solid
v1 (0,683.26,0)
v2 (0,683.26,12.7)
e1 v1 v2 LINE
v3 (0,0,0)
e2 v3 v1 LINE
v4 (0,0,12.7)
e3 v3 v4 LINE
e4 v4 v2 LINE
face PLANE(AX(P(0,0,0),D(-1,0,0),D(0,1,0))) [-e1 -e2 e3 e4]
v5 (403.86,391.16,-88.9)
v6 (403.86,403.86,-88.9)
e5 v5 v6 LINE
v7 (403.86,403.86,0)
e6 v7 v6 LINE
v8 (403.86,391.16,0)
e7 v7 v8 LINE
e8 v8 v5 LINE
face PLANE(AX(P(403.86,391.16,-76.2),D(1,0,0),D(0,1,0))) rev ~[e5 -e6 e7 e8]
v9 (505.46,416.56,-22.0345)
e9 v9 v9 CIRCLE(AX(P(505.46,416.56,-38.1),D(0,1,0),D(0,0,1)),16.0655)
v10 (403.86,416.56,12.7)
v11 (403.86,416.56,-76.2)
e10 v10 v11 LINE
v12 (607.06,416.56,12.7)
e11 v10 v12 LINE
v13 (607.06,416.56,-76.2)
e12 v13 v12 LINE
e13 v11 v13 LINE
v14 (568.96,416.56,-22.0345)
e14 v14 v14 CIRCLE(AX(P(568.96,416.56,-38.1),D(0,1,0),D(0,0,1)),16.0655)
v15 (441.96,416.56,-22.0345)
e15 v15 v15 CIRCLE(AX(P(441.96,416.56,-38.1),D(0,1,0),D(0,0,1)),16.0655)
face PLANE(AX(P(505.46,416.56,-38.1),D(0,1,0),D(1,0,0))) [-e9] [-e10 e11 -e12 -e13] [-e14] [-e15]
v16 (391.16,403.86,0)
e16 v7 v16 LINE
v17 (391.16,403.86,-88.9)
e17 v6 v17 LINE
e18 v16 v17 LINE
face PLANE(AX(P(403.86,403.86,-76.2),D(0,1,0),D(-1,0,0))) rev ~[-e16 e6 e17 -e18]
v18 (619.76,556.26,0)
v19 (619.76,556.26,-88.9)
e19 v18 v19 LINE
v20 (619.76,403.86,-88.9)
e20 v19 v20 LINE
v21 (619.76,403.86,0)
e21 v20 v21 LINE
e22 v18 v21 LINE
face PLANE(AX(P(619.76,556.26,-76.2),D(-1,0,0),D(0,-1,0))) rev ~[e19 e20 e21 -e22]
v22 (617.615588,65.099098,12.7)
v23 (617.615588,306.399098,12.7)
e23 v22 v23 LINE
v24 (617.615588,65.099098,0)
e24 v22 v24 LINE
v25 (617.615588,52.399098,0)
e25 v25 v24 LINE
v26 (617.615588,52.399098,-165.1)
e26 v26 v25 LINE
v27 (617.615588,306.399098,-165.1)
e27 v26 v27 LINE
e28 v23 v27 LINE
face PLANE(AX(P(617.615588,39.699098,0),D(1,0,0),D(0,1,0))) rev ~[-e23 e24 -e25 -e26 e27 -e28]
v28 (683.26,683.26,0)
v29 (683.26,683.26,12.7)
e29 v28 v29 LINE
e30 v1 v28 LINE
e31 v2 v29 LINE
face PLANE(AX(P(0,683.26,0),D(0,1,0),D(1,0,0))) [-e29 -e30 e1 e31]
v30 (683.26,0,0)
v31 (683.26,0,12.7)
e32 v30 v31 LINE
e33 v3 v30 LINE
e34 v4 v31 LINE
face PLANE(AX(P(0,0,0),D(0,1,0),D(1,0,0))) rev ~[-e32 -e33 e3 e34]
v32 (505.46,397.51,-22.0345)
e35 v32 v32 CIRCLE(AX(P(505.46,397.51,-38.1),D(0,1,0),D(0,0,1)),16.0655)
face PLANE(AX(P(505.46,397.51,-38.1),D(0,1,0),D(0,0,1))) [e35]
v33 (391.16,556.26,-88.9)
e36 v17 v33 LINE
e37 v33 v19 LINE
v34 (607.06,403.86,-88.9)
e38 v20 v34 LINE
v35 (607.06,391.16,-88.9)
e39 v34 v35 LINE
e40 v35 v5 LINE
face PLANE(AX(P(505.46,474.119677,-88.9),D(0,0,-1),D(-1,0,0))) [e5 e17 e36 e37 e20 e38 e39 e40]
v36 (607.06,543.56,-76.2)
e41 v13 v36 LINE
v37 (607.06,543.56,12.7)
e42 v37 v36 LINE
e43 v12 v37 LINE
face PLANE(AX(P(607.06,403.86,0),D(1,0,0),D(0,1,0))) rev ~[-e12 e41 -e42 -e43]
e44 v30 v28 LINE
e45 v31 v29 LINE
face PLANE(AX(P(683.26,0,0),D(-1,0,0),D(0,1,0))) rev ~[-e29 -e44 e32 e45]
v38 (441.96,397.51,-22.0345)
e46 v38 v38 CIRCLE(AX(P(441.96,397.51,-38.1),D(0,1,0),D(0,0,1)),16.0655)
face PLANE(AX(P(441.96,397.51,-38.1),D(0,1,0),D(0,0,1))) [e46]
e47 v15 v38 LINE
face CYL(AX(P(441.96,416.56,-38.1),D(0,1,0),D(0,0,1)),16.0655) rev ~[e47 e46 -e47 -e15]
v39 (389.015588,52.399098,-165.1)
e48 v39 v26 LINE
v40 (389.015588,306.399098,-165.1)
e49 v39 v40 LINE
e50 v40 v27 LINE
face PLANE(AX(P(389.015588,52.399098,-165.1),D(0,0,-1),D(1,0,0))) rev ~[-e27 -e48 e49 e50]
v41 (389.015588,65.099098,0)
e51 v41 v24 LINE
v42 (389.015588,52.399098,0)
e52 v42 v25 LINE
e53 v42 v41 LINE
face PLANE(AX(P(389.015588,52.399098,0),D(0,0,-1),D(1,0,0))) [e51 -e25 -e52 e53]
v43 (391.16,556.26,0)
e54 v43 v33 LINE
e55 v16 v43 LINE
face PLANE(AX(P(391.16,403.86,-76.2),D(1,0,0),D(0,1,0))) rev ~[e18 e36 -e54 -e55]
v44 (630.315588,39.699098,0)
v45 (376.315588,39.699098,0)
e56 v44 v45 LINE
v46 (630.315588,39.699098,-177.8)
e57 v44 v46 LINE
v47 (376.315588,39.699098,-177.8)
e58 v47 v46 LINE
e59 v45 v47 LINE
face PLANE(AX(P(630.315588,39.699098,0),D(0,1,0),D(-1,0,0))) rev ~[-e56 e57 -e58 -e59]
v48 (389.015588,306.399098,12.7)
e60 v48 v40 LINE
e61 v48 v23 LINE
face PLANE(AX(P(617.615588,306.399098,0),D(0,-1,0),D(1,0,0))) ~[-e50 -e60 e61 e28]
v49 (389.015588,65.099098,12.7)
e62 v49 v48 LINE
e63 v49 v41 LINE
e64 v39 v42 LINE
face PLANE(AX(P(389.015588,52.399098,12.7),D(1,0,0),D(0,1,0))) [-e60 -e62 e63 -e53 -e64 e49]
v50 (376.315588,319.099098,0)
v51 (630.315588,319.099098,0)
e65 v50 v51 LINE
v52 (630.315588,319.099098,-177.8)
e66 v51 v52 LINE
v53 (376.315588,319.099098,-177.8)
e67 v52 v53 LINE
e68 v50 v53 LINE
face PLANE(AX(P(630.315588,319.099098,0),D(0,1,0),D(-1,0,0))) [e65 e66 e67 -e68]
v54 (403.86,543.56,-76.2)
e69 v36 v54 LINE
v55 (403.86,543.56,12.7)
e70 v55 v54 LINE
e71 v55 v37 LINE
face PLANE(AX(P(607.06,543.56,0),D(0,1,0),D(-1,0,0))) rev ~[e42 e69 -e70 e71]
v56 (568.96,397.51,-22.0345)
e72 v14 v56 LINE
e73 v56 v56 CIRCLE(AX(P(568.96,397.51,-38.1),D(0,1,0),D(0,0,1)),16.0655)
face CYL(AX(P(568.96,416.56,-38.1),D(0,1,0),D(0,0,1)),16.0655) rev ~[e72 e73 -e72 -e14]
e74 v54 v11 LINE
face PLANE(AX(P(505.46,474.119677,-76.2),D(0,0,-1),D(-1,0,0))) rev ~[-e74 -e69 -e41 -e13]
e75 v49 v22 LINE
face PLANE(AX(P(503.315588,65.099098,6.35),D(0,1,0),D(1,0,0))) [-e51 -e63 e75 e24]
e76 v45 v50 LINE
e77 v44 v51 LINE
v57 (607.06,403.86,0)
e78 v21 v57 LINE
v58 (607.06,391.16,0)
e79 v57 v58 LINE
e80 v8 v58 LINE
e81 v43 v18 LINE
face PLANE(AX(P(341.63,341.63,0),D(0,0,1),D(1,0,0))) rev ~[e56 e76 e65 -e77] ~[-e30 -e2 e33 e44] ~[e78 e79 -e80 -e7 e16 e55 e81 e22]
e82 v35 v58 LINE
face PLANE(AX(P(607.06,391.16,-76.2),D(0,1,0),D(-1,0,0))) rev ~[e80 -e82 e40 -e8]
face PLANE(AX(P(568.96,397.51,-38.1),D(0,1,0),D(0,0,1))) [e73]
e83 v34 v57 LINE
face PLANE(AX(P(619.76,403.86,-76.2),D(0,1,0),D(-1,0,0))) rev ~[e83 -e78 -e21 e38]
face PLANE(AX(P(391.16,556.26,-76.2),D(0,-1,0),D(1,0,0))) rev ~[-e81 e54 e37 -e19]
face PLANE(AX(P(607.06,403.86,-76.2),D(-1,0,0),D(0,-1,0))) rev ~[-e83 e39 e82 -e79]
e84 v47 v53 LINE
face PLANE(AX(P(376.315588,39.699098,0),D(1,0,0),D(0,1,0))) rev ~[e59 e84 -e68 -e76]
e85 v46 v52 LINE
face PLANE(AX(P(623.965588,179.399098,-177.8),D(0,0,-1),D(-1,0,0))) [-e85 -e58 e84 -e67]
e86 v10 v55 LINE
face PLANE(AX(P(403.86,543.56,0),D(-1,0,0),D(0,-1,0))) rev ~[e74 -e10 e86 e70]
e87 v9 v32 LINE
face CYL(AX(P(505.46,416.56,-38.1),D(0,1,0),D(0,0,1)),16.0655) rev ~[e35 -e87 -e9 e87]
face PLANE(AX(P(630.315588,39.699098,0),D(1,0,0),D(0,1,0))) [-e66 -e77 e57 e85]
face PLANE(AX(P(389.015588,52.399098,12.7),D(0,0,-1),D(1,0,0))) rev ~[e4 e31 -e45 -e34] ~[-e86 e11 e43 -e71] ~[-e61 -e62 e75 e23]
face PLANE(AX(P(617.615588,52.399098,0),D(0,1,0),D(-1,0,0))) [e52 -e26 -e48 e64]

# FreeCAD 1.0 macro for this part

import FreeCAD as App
import Part
import Sketcher
Q = App.Units.Quantity

doc = App.newDocument("Part")
body = doc.addObject("PartDesign::Body", "Body")

sketch1 = doc.addObject("Sketcher::SketchObject", "Sketch")
body.addObject(sketch1)
sketch1.AttachmentSupport = (doc.XY_Plane, [""])
sketch1.MapMode = "FlatFace"
sketch1.addGeometry([
    Part.LineSegment(App.Vector(0, 683, 0), App.Vector(0, 0, 0)),
    Part.LineSegment(App.Vector(0, 0, 0), App.Vector(683, 0, 0)),
    Part.LineSegment(App.Vector(683, 0, 0), App.Vector(683, 683, 0)),
    Part.LineSegment(App.Vector(683, 683, 0), App.Vector(0, 683, 0)),
    Part.LineSegment(App.Vector(607, 417, 0), App.Vector(404, 417, 0)),
    Part.LineSegment(App.Vector(404, 417, 0), App.Vector(404, 544, 0)),
    Part.LineSegment(App.Vector(404, 544, 0), App.Vector(607, 544, 0)),
    Part.LineSegment(App.Vector(607, 544, 0), App.Vector(607, 417, 0)),
], False)
sketch1.addConstraint([
    Sketcher.Constraint("Coincident", 0, 2, 1, 1),
    Sketcher.Constraint("Coincident", 1, 2, 2, 1),
    Sketcher.Constraint("Coincident", 2, 2, 3, 1),
    Sketcher.Constraint("Coincident", 3, 2, 0, 1),
    Sketcher.Constraint("Coincident", 4, 2, 5, 1),
    Sketcher.Constraint("Coincident", 5, 2, 6, 1),
    Sketcher.Constraint("Coincident", 6, 2, 7, 1),
    Sketcher.Constraint("Coincident", 7, 2, 4, 1),
    Sketcher.Constraint("Vertical", 0),
    Sketcher.Constraint("Horizontal", 1),
    Sketcher.Constraint("Vertical", 2),
    Sketcher.Constraint("Horizontal", 3),
    Sketcher.Constraint("Horizontal", 4),
    Sketcher.Constraint("Vertical", 5),
    Sketcher.Constraint("Horizontal", 6),
    Sketcher.Constraint("Vertical", 7),
    Sketcher.Constraint("Coincident", 0, 2, -1, 1),
    Sketcher.Constraint("Equal", 3, 0),
    Sketcher.Constraint("DistanceX", 4, 2, 4, 1, Q("8 in")),
    Sketcher.Constraint("DistanceY", 5, 1, 5, 2, Q("5 in")),
    Sketcher.Constraint("DistanceX", 1, 1, 1, 2, Q("26.9 in")),
    Sketcher.Constraint("DistanceX", 4, 2, 2, 2, Q("11 in")),
    Sketcher.Constraint("DistanceY", -1, 1, 4, 2, Q("16.4 in")),
])
pad1 = doc.addObject("PartDesign::Pad", "Pad")
body.addObject(pad1)
pad1.Profile = sketch1
pad1.Length = Q("0.5 in")

sketch2 = doc.addObject("Sketcher::SketchObject", "Sketch001")
body.addObject(sketch2)
sketch2.AttachmentSupport = (doc.XZ_Plane, [""])
sketch2.MapMode = "FlatFace"
sketch2.AttachmentOffset = App.Placement(App.Vector(0, 0, -16.4 * 25.4), App.Rotation())
sketch2.addGeometry([
    Part.LineSegment(App.Vector(404, -76, 0), App.Vector(404, 0, 0)),
    Part.LineSegment(App.Vector(404, 0, 0), App.Vector(607, 0, 0)),
    Part.LineSegment(App.Vector(607, 0, 0), App.Vector(607, -76, 0)),
    Part.LineSegment(App.Vector(607, -76, 0), App.Vector(404, -76, 0)),
], False)
sketch2.addConstraint([
    Sketcher.Constraint("Coincident", 0, 2, 1, 1),
    Sketcher.Constraint("Coincident", 1, 2, 2, 1),
    Sketcher.Constraint("Coincident", 2, 2, 3, 1),
    Sketcher.Constraint("Coincident", 3, 2, 0, 1),
    Sketcher.Constraint("Vertical", 0),
    Sketcher.Constraint("Horizontal", 1),
    Sketcher.Constraint("Vertical", 2),
    Sketcher.Constraint("Horizontal", 3),
    Sketcher.Constraint("PointOnObject", 0, 2, -1),
    Sketcher.Constraint("DistanceX", 1, 1, 1, 2, Q("8 in")),
    Sketcher.Constraint("DistanceY", 0, 1, 0, 2, Q("3 in")),
    Sketcher.Constraint("DistanceX", -1, 1, 0, 2, Q("15.9 in")),
])
pad2 = doc.addObject("PartDesign::Pad", "Pad001")
body.addObject(pad2)
pad2.Profile = sketch2
pad2.Length = Q("1 in")

sketch3 = doc.addObject("Sketcher::SketchObject", "Sketch002")
body.addObject(sketch3)
sketch3.AttachmentSupport = (doc.XZ_Plane, [""])
sketch3.MapMode = "FlatFace"
sketch3.AttachmentOffset = App.Placement(App.Vector(0, 0, -16.4 * 25.4), App.Rotation())
sketch3.addGeometry([
    Part.Circle(App.Vector(569, -38, 0), App.Vector(0, 0, 1), 16),
    Part.Circle(App.Vector(505, -38, 0), App.Vector(0, 0, 1), 16),
    Part.Circle(App.Vector(442, -38, 0), App.Vector(0, 0, 1), 16),
], False)
sketch3.addConstraint([
    Sketcher.Constraint("Equal", 0, 1),
    Sketcher.Constraint("Equal", 1, 2),
    Sketcher.Constraint("Horizontal", 0, 3, 1, 3),
    Sketcher.Constraint("Horizontal", 1, 3, 2, 3),
    Sketcher.Constraint("Diameter", 0, Q("1.265 in")),
    Sketcher.Constraint("DistanceX", 2, 3, 0, 3, Q("5 in")),
    Sketcher.Constraint("DistanceX", -1, 1, 0, 3, Q("22.4 in")),
    Sketcher.Constraint("DistanceY", 0, 3, -1, 1, Q("1.5 in")),
    Sketcher.Constraint("DistanceX", -1, 1, 1, 3, Q("19.9 in")),
])
pocket1 = doc.addObject("PartDesign::Pocket", "Pocket")
body.addObject(pocket1)
pocket1.Profile = sketch3
pocket1.Length = Q("0.75 in")
pocket1.Reversed = True

sketch4 = doc.addObject("Sketcher::SketchObject", "Sketch003")
body.addObject(sketch4)
sketch4.AttachmentSupport = (doc.XY_Plane, [""])
sketch4.MapMode = "FlatFace"
sketch4.addGeometry([
    Part.LineSegment(App.Vector(620, 404, 0), App.Vector(607, 404, 0)),
    Part.LineSegment(App.Vector(607, 404, 0), App.Vector(607, 544, 0)),
    Part.LineSegment(App.Vector(607, 544, 0), App.Vector(404, 544, 0)),
    Part.LineSegment(App.Vector(404, 544, 0), App.Vector(404, 404, 0)),
    Part.LineSegment(App.Vector(404, 404, 0), App.Vector(391, 404, 0)),
    Part.LineSegment(App.Vector(391, 404, 0), App.Vector(391, 556, 0)),
    Part.LineSegment(App.Vector(391, 556, 0), App.Vector(620, 556, 0)),
    Part.LineSegment(App.Vector(620, 556, 0), App.Vector(620, 404, 0)),
], False)
sketch4.addConstraint([
    Sketcher.Constraint("Coincident", 0, 2, 1, 1),
    Sketcher.Constraint("Coincident", 1, 2, 2, 1),
    Sketcher.Constraint("Coincident", 2, 2, 3, 1),
    Sketcher.Constraint("Coincident", 3, 2, 4, 1),
    Sketcher.Constraint("Coincident", 4, 2, 5, 1),
    Sketcher.Constraint("Coincident", 5, 2, 6, 1),
    Sketcher.Constraint("Coincident", 6, 2, 7, 1),
    Sketcher.Constraint("Coincident", 7, 2, 0, 1),
    Sketcher.Constraint("Horizontal", 0),
    Sketcher.Constraint("Vertical", 1),
    Sketcher.Constraint("Horizontal", 2),
    Sketcher.Constraint("Vertical", 3),
    Sketcher.Constraint("Horizontal", 4),
    Sketcher.Constraint("Vertical", 5),
    Sketcher.Constraint("Horizontal", 6),
    Sketcher.Constraint("Vertical", 7),
    Sketcher.Constraint("Horizontal", 0, 2, 3, 2),
    Sketcher.Constraint("Equal", 0, 4),
    Sketcher.Constraint("DistanceX", 2, 2, 2, 1, Q("8 in")),
    Sketcher.Constraint("DistanceX", 6, 1, 6, 2, Q("9 in")),
    Sketcher.Constraint("DistanceY", 5, 1, 5, 2, Q("6 in")),
    Sketcher.Constraint("DistanceY", 1, 1, 1, 2, Q("5.5 in")),
    Sketcher.Constraint("DistanceX", -1, 1, 0, 2, Q("23.9 in")),
    Sketcher.Constraint("DistanceY", -1, 1, 0, 2, Q("15.9 in")),
])
pad3 = doc.addObject("PartDesign::Pad", "Pad002")
body.addObject(pad3)
pad3.Profile = sketch4
pad3.Length = Q("3 in")
pad3.Reversed = True

sketch5 = doc.addObject("Sketcher::SketchObject", "Sketch004")
body.addObject(sketch5)
sketch5.AttachmentSupport = (doc.XY_Plane, [""])
sketch5.MapMode = "FlatFace"
sketch5.AttachmentOffset = App.Placement(App.Vector(0, 0, -3 * 25.4), App.Rotation())
sketch5.addGeometry([
    Part.LineSegment(App.Vector(607, 391, 0), App.Vector(404, 391, 0)),
    Part.LineSegment(App.Vector(404, 391, 0), App.Vector(404, 404, 0)),
    Part.LineSegment(App.Vector(404, 404, 0), App.Vector(391, 404, 0)),
    Part.LineSegment(App.Vector(391, 404, 0), App.Vector(391, 556, 0)),
    Part.LineSegment(App.Vector(391, 556, 0), App.Vector(620, 556, 0)),
    Part.LineSegment(App.Vector(620, 556, 0), App.Vector(620, 404, 0)),
    Part.LineSegment(App.Vector(620, 404, 0), App.Vector(607, 404, 0)),
    Part.LineSegment(App.Vector(607, 404, 0), App.Vector(607, 391, 0)),
], False)
sketch5.addConstraint([
    Sketcher.Constraint("Coincident", 0, 2, 1, 1),
    Sketcher.Constraint("Coincident", 1, 2, 2, 1),
    Sketcher.Constraint("Coincident", 2, 2, 3, 1),
    Sketcher.Constraint("Coincident", 3, 2, 4, 1),
    Sketcher.Constraint("Coincident", 4, 2, 5, 1),
    Sketcher.Constraint("Coincident", 5, 2, 6, 1),
    Sketcher.Constraint("Coincident", 6, 2, 7, 1),
    Sketcher.Constraint("Coincident", 7, 2, 0, 1),
    Sketcher.Constraint("Horizontal", 0),
    Sketcher.Constraint("Vertical", 1),
    Sketcher.Constraint("Horizontal", 2),
    Sketcher.Constraint("Vertical", 3),
    Sketcher.Constraint("Horizontal", 4),
    Sketcher.Constraint("Vertical", 5),
    Sketcher.Constraint("Horizontal", 6),
    Sketcher.Constraint("Vertical", 7),
    Sketcher.Constraint("Horizontal", 2, 2, 5, 2),
    Sketcher.Constraint("Equal", 2, 6),
    Sketcher.Constraint("Equal", 6, 1),
    Sketcher.Constraint("DistanceX", 0, 2, 0, 1, Q("8 in")),
    Sketcher.Constraint("DistanceX", 4, 1, 4, 2, Q("9 in")),
    Sketcher.Constraint("DistanceY", 3, 1, 3, 2, Q("6 in")),
    Sketcher.Constraint("DistanceX", -1, 1, 0, 2, Q("15.9 in")),
    Sketcher.Constraint("DistanceY", -1, 1, 0, 2, Q("15.4 in")),
])
pad4 = doc.addObject("PartDesign::Pad", "Pad003")
body.addObject(pad4)
pad4.Profile = sketch5
pad4.Length = Q("0.5 in")
pad4.Reversed = True

sketch6 = doc.addObject("Sketcher::SketchObject", "Sketch005")
body.addObject(sketch6)
sketch6.AttachmentSupport = (doc.XY_Plane, [""])
sketch6.MapMode = "FlatFace"
sketch6.AttachmentOffset = App.Placement(App.Vector(0, 0, 0.5 * 25.4), App.Rotation())
sketch6.addGeometry([
    Part.LineSegment(App.Vector(389, 306, 0), App.Vector(389, 52, 0)),
    Part.LineSegment(App.Vector(389, 52, 0), App.Vector(618, 52, 0)),
    Part.LineSegment(App.Vector(618, 52, 0), App.Vector(618, 306, 0)),
    Part.LineSegment(App.Vector(618, 306, 0), App.Vector(389, 306, 0)),
], False)
sketch6.addConstraint([
    Sketcher.Constraint("Coincident", 0, 2, 1, 1),
    Sketcher.Constraint("Coincident", 1, 2, 2, 1),
    Sketcher.Constraint("Coincident", 2, 2, 3, 1),
    Sketcher.Constraint("Coincident", 3, 2, 0, 1),
    Sketcher.Constraint("Vertical", 0),
    Sketcher.Constraint("Horizontal", 1),
    Sketcher.Constraint("Vertical", 2),
    Sketcher.Constraint("Horizontal", 3),
    Sketcher.Constraint("DistanceX", 1, 1, 1, 2, Q("9 in")),
    Sketcher.Constraint("DistanceY", 0, 2, 0, 1, Q("10 in")),
    Sketcher.Constraint("DistanceY", -1, 1, 0, 2, Q("52.399098 mm")),
    Sketcher.Constraint("DistanceX", -1, 1, 0, 2, Q("389.015588 mm")),
])
pocket2 = doc.addObject("PartDesign::Pocket", "Pocket001")
body.addObject(pocket2)
pocket2.Profile = sketch6
pocket2.Type = "ThroughAll"

sketch7 = doc.addObject("Sketcher::SketchObject", "Sketch006")
body.addObject(sketch7)
sketch7.AttachmentSupport = (doc.XY_Plane, [""])
sketch7.MapMode = "FlatFace"
sketch7.addGeometry([
    Part.LineSegment(App.Vector(618, 52, 0), App.Vector(618, 40, 0)),
    Part.LineSegment(App.Vector(618, 40, 0), App.Vector(389, 40, 0)),
    Part.LineSegment(App.Vector(389, 40, 0), App.Vector(389, 52, 0)),
    Part.LineSegment(App.Vector(389, 52, 0), App.Vector(618, 52, 0)),
], False)
sketch7.addConstraint([
    Sketcher.Constraint("Coincident", 0, 2, 1, 1),
    Sketcher.Constraint("Coincident", 1, 2, 2, 1),
    Sketcher.Constraint("Coincident", 2, 2, 3, 1),
    Sketcher.Constraint("Coincident", 3, 2, 0, 1),
    Sketcher.Constraint("Vertical", 0),
    Sketcher.Constraint("Horizontal", 1),
    Sketcher.Constraint("Vertical", 2),
    Sketcher.Constraint("Horizontal", 3),
    Sketcher.Constraint("DistanceX", 1, 2, 1, 1, Q("9 in")),
    Sketcher.Constraint("DistanceY", 0, 2, 0, 1, Q("0.5 in")),
    Sketcher.Constraint("DistanceY", -1, 1, 0, 2, Q("39.699098 mm")),
    Sketcher.Constraint("DistanceX", -1, 1, 0, 2, Q("617.615588 mm")),
])
pad5 = doc.addObject("PartDesign::Pad", "Pad004")
body.addObject(pad5)
pad5.Profile = sketch7
pad5.Length = Q("7 in")
pad5.Reversed = True
doc.recompute()

datumplane = doc.addObject("PartDesign::Plane", "DatumPlane")
body.addObject(datumplane)
datumplane.AttachmentSupport = (doc.XZ_Plane, [""])
datumplane.MapMode = "FlatFace"
datumplane.AttachmentOffset = App.Placement(App.Vector(0, 0, -179.399098), App.Rotation())
mirrored = doc.addObject("PartDesign::Mirrored", "Mirrored")
body.addObject(mirrored)
mirrored.Originals = [pad5]
mirrored.MirrorPlane = (datumplane, [""])
body.Tip = mirrored

sketch8 = doc.addObject("Sketcher::SketchObject", "Sketch007")
body.addObject(sketch8)
sketch8.AttachmentSupport = (doc.XY_Plane, [""])
sketch8.MapMode = "FlatFace"
sketch8.addGeometry([
    Part.LineSegment(App.Vector(630, 319, 0), App.Vector(630, 40, 0)),
    Part.LineSegment(App.Vector(630, 40, 0), App.Vector(618, 40, 0)),
    Part.LineSegment(App.Vector(618, 40, 0), App.Vector(618, 319, 0)),
    Part.LineSegment(App.Vector(618, 319, 0), App.Vector(630, 319, 0)),
    Part.LineSegment(App.Vector(389, 319, 0), App.Vector(389, 40, 0)),
    Part.LineSegment(App.Vector(389, 40, 0), App.Vector(376, 40, 0)),
    Part.LineSegment(App.Vector(376, 40, 0), App.Vector(376, 319, 0)),
    Part.LineSegment(App.Vector(376, 319, 0), App.Vector(389, 319, 0)),
], False)
sketch8.addConstraint([
    Sketcher.Constraint("Coincident", 0, 2, 1, 1),
    Sketcher.Constraint("Coincident", 1, 2, 2, 1),
    Sketcher.Constraint("Coincident", 2, 2, 3, 1),
    Sketcher.Constraint("Coincident", 3, 2, 0, 1),
    Sketcher.Constraint("Coincident", 4, 2, 5, 1),
    Sketcher.Constraint("Coincident", 5, 2, 6, 1),
    Sketcher.Constraint("Coincident", 6, 2, 7, 1),
    Sketcher.Constraint("Coincident", 7, 2, 4, 1),
    Sketcher.Constraint("Vertical", 0),
    Sketcher.Constraint("Horizontal", 1),
    Sketcher.Constraint("Vertical", 2),
    Sketcher.Constraint("Horizontal", 3),
    Sketcher.Constraint("Vertical", 4),
    Sketcher.Constraint("Horizontal", 5),
    Sketcher.Constraint("Vertical", 6),
    Sketcher.Constraint("Horizontal", 7),
    Sketcher.Constraint("Horizontal", 1, 2, 4, 2),
    Sketcher.Constraint("Horizontal", 3, 2, 6, 2),
    Sketcher.Constraint("Equal", 3, 5),
    Sketcher.Constraint("DistanceY", 0, 2, 0, 1, Q("11 in")),
    Sketcher.Constraint("DistanceX", 1, 2, 1, 1, Q("0.5 in")),
    Sketcher.Constraint("DistanceX", 4, 2, 1, 2, Q("9 in")),
    Sketcher.Constraint("DistanceY", -1, 1, 0, 2, Q("39.699098 mm")),
    Sketcher.Constraint("DistanceX", -1, 1, 0, 2, Q("630.315588 mm")),
])
pad6 = doc.addObject("PartDesign::Pad", "Pad005")
body.addObject(pad6)
pad6.Profile = sketch8
pad6.Length = Q("7 in")
pad6.Reversed = True

sketch9 = doc.addObject("Sketcher::SketchObject", "Sketch008")
body.addObject(sketch9)
sketch9.AttachmentSupport = (doc.XZ_Plane, [""])
sketch9.MapMode = "FlatFace"
sketch9.AttachmentOffset = App.Placement(App.Vector(0, 0, -52.399098), App.Rotation())
sketch9.addGeometry([
    Part.LineSegment(App.Vector(389, -178, 0), App.Vector(389, -165, 0)),
    Part.LineSegment(App.Vector(389, -165, 0), App.Vector(618, -165, 0)),
    Part.LineSegment(App.Vector(618, -165, 0), App.Vector(618, -178, 0)),
    Part.LineSegment(App.Vector(618, -178, 0), App.Vector(389, -178, 0)),
], False)
sketch9.addConstraint([
    Sketcher.Constraint("Coincident", 0, 2, 1, 1),
    Sketcher.Constraint("Coincident", 1, 2, 2, 1),
    Sketcher.Constraint("Coincident", 2, 2, 3, 1),
    Sketcher.Constraint("Coincident", 3, 2, 0, 1),
    Sketcher.Constraint("Vertical", 0),
    Sketcher.Constraint("Horizontal", 1),
    Sketcher.Constraint("Vertical", 2),
    Sketcher.Constraint("Horizontal", 3),
    Sketcher.Constraint("DistanceX", 1, 1, 1, 2, Q("9 in")),
    Sketcher.Constraint("DistanceY", 0, 1, 0, 2, Q("0.5 in")),
    Sketcher.Constraint("DistanceY", 2, 2, -1, 1, Q("7 in")),
    Sketcher.Constraint("DistanceX", -1, 1, 0, 2, Q("389.015588 mm")),
])
pad7 = doc.addObject("PartDesign::Pad", "Pad006")
body.addObject(pad7)
pad7.Profile = sketch9
pad7.Length = Q("10 in")
pad7.Reversed = True

sketch10 = doc.addObject("Sketcher::SketchObject", "Sketch009")
body.addObject(sketch10)
sketch10.AttachmentSupport = (doc.XZ_Plane, [""])
sketch10.MapMode = "FlatFace"
sketch10.AttachmentOffset = App.Placement(App.Vector(0, 0, -52.399098), App.Rotation())
sketch10.addGeometry([
    Part.LineSegment(App.Vector(389, 0, 0), App.Vector(389, 13, 0)),
    Part.LineSegment(App.Vector(389, 13, 0), App.Vector(618, 13, 0)),
    Part.LineSegment(App.Vector(618, 13, 0), App.Vector(618, 0, 0)),
    Part.LineSegment(App.Vector(618, 0, 0), App.Vector(389, 0, 0)),
], False)
sketch10.addConstraint([
    Sketcher.Constraint("Coincident", 0, 2, 1, 1),
    Sketcher.Constraint("Coincident", 1, 2, 2, 1),
    Sketcher.Constraint("Coincident", 2, 2, 3, 1),
    Sketcher.Constraint("Coincident", 3, 2, 0, 1),
    Sketcher.Constraint("Vertical", 0),
    Sketcher.Constraint("Horizontal", 1),
    Sketcher.Constraint("Vertical", 2),
    Sketcher.Constraint("Horizontal", 3),
    Sketcher.Constraint("PointOnObject", 2, 2, -1),
    Sketcher.Constraint("DistanceX", 1, 1, 1, 2, Q("9 in")),
    Sketcher.Constraint("DistanceY", 0, 1, 0, 2, Q("0.5 in")),
    Sketcher.Constraint("DistanceX", -1, 1, 0, 2, Q("389.015588 mm")),
])
pad8 = doc.addObject("PartDesign::Pad", "Pad007")
body.addObject(pad8)
pad8.Profile = sketch10
pad8.Length = Q("0.5 in")
pad8.Reversed = True

doc.recompute()
